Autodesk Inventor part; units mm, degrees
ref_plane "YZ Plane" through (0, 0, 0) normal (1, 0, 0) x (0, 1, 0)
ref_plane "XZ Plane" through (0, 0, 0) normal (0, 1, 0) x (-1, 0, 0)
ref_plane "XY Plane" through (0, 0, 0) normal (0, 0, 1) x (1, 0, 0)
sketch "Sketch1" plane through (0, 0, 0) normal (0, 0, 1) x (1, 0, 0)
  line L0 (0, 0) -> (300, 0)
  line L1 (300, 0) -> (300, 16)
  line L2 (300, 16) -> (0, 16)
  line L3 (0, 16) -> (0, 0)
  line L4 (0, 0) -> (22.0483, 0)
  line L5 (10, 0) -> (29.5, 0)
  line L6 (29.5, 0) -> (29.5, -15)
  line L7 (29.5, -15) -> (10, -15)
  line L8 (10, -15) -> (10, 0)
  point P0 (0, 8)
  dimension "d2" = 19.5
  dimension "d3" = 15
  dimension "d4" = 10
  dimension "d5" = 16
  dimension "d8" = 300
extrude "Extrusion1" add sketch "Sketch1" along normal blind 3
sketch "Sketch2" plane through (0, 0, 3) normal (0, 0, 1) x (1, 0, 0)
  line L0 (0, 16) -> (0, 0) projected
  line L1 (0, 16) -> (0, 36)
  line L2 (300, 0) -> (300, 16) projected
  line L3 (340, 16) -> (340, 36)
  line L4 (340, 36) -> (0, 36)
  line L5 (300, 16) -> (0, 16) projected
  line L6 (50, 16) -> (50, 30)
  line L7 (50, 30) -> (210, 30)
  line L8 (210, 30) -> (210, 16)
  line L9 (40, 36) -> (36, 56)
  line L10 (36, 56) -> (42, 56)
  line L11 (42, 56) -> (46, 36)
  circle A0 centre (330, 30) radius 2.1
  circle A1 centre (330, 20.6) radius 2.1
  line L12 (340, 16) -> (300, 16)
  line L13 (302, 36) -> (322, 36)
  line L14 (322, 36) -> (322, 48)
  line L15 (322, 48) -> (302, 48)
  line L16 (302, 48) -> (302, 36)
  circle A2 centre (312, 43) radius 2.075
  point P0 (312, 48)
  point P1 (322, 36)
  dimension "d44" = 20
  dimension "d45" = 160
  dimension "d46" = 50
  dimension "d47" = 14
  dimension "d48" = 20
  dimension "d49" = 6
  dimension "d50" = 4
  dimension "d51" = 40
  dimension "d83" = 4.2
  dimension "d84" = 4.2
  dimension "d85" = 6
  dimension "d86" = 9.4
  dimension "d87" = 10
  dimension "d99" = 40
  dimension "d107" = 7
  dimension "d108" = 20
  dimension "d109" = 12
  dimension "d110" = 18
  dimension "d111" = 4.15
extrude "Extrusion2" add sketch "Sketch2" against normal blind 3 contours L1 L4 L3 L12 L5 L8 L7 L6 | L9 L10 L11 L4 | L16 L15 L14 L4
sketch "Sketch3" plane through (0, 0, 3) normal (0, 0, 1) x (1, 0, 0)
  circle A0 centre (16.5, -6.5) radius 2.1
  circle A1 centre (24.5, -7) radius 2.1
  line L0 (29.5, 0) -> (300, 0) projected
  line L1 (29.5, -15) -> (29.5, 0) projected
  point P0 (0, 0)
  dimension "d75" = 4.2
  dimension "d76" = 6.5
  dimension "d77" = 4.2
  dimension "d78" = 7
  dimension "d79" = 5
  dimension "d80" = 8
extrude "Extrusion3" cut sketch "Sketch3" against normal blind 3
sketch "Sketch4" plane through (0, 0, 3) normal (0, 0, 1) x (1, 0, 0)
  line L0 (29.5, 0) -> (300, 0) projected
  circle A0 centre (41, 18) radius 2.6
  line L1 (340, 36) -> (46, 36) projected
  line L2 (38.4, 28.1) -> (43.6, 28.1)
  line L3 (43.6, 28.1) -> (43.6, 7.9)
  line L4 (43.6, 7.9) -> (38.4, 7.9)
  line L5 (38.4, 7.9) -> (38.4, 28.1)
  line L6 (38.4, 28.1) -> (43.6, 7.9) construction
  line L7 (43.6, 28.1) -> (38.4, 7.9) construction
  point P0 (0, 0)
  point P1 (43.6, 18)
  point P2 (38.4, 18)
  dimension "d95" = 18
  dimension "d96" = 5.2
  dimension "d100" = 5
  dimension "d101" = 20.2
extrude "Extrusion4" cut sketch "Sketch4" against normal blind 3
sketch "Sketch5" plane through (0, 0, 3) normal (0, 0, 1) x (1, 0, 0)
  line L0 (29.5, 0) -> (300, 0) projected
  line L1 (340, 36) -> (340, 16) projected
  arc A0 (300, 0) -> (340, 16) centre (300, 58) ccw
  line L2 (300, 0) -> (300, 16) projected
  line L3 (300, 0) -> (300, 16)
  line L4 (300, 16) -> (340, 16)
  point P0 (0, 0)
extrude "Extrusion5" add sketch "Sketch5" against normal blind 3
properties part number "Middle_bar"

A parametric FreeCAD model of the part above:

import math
import FreeCAD as App
import Part
import Sketcher
from FreeCAD import Vector


def add_polygon(sketch, points):
    """Adds a closed chain of lines whose ends are joined by coincident constraints."""
    first, n = sketch.GeometryCount, len(points)
    for a, b in zip(points, points[1:] + points[:1]):
        sketch.addGeometry(Part.LineSegment(App.Vector(*a, 0), App.Vector(*b, 0)), False)
    for i in range(n):
        sketch.addConstraint(Sketcher.Constraint("Coincident", first + i, 2, first + (i + 1) % n, 1))

doc = App.newDocument("Part")
body = doc.addObject("PartDesign::Body", "Body")

# Sketch on XY plane
sketch1 = body.newObject("Sketcher::SketchObject", "Sketch")
sketch1.AttachmentSupport = (doc.getObject("XY_Plane"), [""])
sketch1.MapMode = "FlatFace"
add_polygon(sketch1, [(0, 16), (0, 0), (10, 0), (10, -15), (30, -15), (30, 0), (300, 0), (300, 16)])  # lines 0-7
sketch1.addConstraint(Sketcher.Constraint("Vertical", 0))
sketch1.addConstraint(Sketcher.Constraint("Horizontal", 1))
sketch1.addConstraint(Sketcher.Constraint("Vertical", 2))
sketch1.addConstraint(Sketcher.Constraint("Horizontal", 3))
sketch1.addConstraint(Sketcher.Constraint("Vertical", 4))
sketch1.addConstraint(Sketcher.Constraint("Horizontal", 5))
sketch1.addConstraint(Sketcher.Constraint("Vertical", 6))
sketch1.addConstraint(Sketcher.Constraint("Horizontal", 7))
sketch1.addConstraint(Sketcher.Constraint("Coincident", 0, 2, -1, 1))
sketch1.addConstraint(Sketcher.Constraint("PointOnObject", 4, 2, -1))
sketch1.addConstraint(Sketcher.Constraint("DistanceX", 1, 1, 1, 2, 10.0))
sketch1.addConstraint(Sketcher.Constraint("DistanceX", 7, 2, 7, 1, 300.0))
sketch1.addConstraint(Sketcher.Constraint("DistanceY", 0, 2, 0, 1, 16.0))
sketch1.addConstraint(Sketcher.Constraint("DistanceY", 2, 2, 2, 1, 15.0))
sketch1.addConstraint(Sketcher.Constraint("DistanceX", 3, 1, 3, 2, 19.5))
pad1 = body.newObject("PartDesign::Pad", "Pad")
pad1.Profile = sketch1
pad1.Length = 3

# Sketch on XY plane
sketch2 = body.newObject("Sketcher::SketchObject", "Sketch001")
sketch2.AttachmentSupport = (doc.getObject("XY_Plane"), [""])
sketch2.MapMode = "FlatFace"
sketch2.AttachmentOffset = App.Placement(Vector(0, 0, 3), App.Rotation())
add_polygon(sketch2, [(0, 36), (0, 16), (50, 16), (50, 30), (210, 30), (210, 16), (340, 16), (340, 36), (322, 36), (322, 48), (302, 48), (302, 36), (46, 36), (42, 56), (36, 56), (40, 36)])  # lines 0-15
sketch2.addGeometry(Part.Circle(Vector(330, 20.6, 0), Vector(0, 0, 1), 2.1), False)  # 16
sketch2.addGeometry(Part.Circle(Vector(330, 30, 0), Vector(0, 0, 1), 2.1), False)  # 17
sketch2.addGeometry(Part.Circle(Vector(312, 43, 0), Vector(0, 0, 1), 2.1), False)  # 18
sketch2.addConstraint(Sketcher.Constraint("Vertical", 0))
sketch2.addConstraint(Sketcher.Constraint("Horizontal", 1))
sketch2.addConstraint(Sketcher.Constraint("Vertical", 2))
sketch2.addConstraint(Sketcher.Constraint("Horizontal", 3))
sketch2.addConstraint(Sketcher.Constraint("Vertical", 4))
sketch2.addConstraint(Sketcher.Constraint("Horizontal", 5))
sketch2.addConstraint(Sketcher.Constraint("Vertical", 6))
sketch2.addConstraint(Sketcher.Constraint("Horizontal", 7))
sketch2.addConstraint(Sketcher.Constraint("Vertical", 8))
sketch2.addConstraint(Sketcher.Constraint("Horizontal", 9))
sketch2.addConstraint(Sketcher.Constraint("Vertical", 10))
sketch2.addConstraint(Sketcher.Constraint("Horizontal", 11))
sketch2.addConstraint(Sketcher.Constraint("Horizontal", 13))
sketch2.addConstraint(Sketcher.Constraint("Horizontal", 15))
sketch2.addConstraint(Sketcher.Constraint("Equal", 16, 17))
sketch2.addConstraint(Sketcher.Constraint("PointOnObject", 0, 2, -2))
sketch2.addConstraint(Sketcher.Constraint("Parallel", 12, 14))
sketch2.addConstraint(Sketcher.Constraint("Horizontal", 17, 3, 2, 2))
sketch2.addConstraint(Sketcher.Constraint("Horizontal", 1, 2, 4, 2))
sketch2.addConstraint(Sketcher.Constraint("Horizontal", 7, 2, 10, 2))
sketch2.addConstraint(Sketcher.Constraint("Horizontal", 11, 2, 14, 2))
sketch2.addConstraint(Sketcher.Constraint("Vertical", 16, 3, 17, 3))
sketch2.addConstraint(Sketcher.Constraint("Equal", 9, 0))
sketch2.addConstraint(Sketcher.Constraint("Diameter", 16, 4.2))
sketch2.addConstraint(Sketcher.Constraint("Diameter", 18, 4.15))
sketch2.addConstraint(Sketcher.Constraint("DistanceX", 1, 1, 1, 2, 50.0))
sketch2.addConstraint(Sketcher.Constraint("DistanceX", 3, 1, 3, 2, 160.0))
sketch2.addConstraint(Sketcher.Constraint("DistanceX", 7, 2, 7, 1, 18.0))
sketch2.addConstraint(Sketcher.Constraint("DistanceX", 9, 2, 9, 1, 20.0))
sketch2.addConstraint(Sketcher.Constraint("DistanceX", 13, 2, 13, 1, 6.0))
sketch2.addConstraint(Sketcher.Constraint("DistanceX", 15, 2, 15, 1, 40.0))
sketch2.addConstraint(Sketcher.Constraint("DistanceY", 2, 1, 2, 2, 14.0))
sketch2.addConstraint(Sketcher.Constraint("DistanceY", 8, 1, 8, 2, 12.0))
sketch2.addConstraint(Sketcher.Constraint("DistanceX", 18, 3, 17, 3, 18.0))
sketch2.addConstraint(Sketcher.Constraint("DistanceX", 16, 3, 5, 2, 10.0))
sketch2.addConstraint(Sketcher.Constraint("DistanceY", 6, 2, 18, 3, 7.0))
sketch2.addConstraint(Sketcher.Constraint("DistanceX", 12, 2, 11, 2, 4.0))
sketch2.addConstraint(Sketcher.Constraint("DistanceY", 11, 2, 12, 2, 20.0))
sketch2.addConstraint(Sketcher.Constraint("DistanceY", 16, 3, 17, 3, 9.4))
sketch2.addConstraint(Sketcher.Constraint("DistanceX", 5, 1, 5, 2, 130.0))
sketch2.addConstraint(Sketcher.Constraint("DistanceY", -1, 1, 17, 3, 30.0))
pad2 = body.newObject("PartDesign::Pad", "Pad001")
pad2.Profile = sketch2
pad2.Length = 3
pad2.Reversed = True

# Sketch on XY plane
sketch3 = body.newObject("Sketcher::SketchObject", "Sketch002")
sketch3.AttachmentSupport = (doc.getObject("XY_Plane"), [""])
sketch3.MapMode = "FlatFace"
sketch3.AttachmentOffset = App.Placement(Vector(0, 0, 3), App.Rotation())
sketch3.addGeometry(Part.Circle(Vector(16.5, -6.5, 0), Vector(0, 0, 1), 2.1), False)
sketch3.addGeometry(Part.Circle(Vector(24.5, -7, 0), Vector(0, 0, 1), 2.1), False)
sketch3.addConstraint(Sketcher.Constraint("Equal", 0, 1))
sketch3.addConstraint(Sketcher.Constraint("Diameter", 0, 4.2))
sketch3.addConstraint(Sketcher.Constraint("DistanceY", 1, 3, -1, 1, 7.0))
sketch3.addConstraint(Sketcher.Constraint("DistanceX", 0, 3, 1, 3, 8.0))
sketch3.addConstraint(Sketcher.Constraint("DistanceY", 0, 3, -1, 1, 6.5))
sketch3.addConstraint(Sketcher.Constraint("DistanceX", -1, 1, 0, 3, 16.5))
pocket1 = body.newObject("PartDesign::Pocket", "Pocket")
pocket1.Profile = sketch3
pocket1.Length = 3

# Sketch on XY plane
sketch4 = body.newObject("Sketcher::SketchObject", "Sketch003")
sketch4.AttachmentSupport = (doc.getObject("XY_Plane"), [""])
sketch4.MapMode = "FlatFace"
sketch4.AttachmentOffset = App.Placement(Vector(0, 0, 3), App.Rotation())
add_polygon(sketch4, [(44, 8), (44, 28), (38, 28), (38, 8)])  # lines 0-3
sketch4.addConstraint(Sketcher.Constraint("Vertical", 0))
sketch4.addConstraint(Sketcher.Constraint("Horizontal", 1))
sketch4.addConstraint(Sketcher.Constraint("Vertical", 2))
sketch4.addConstraint(Sketcher.Constraint("Horizontal", 3))
sketch4.addConstraint(Sketcher.Constraint("DistanceX", 1, 2, 1, 1, 5.2))
sketch4.addConstraint(Sketcher.Constraint("DistanceY", 0, 1, 0, 2, 20.2))
sketch4.addConstraint(Sketcher.Constraint("DistanceX", -1, 1, 0, 2, 43.6))
sketch4.addConstraint(Sketcher.Constraint("DistanceY", -1, 1, 0, 2, 28.1))
pocket2 = body.newObject("PartDesign::Pocket", "Pocket001")
pocket2.Profile = sketch4
pocket2.Length = 3

# Sketch on XY plane
sketch5 = body.newObject("Sketcher::SketchObject", "Sketch004")
sketch5.AttachmentSupport = (doc.getObject("XY_Plane"), [""])
sketch5.MapMode = "FlatFace"
sketch5.AttachmentOffset = App.Placement(Vector(0, 0, 3), App.Rotation())
sketch5.addGeometry(Part.LineSegment(Vector(300, 16, 0), Vector(300, 0, 0)), False)
sketch5.addGeometry(Part.ArcOfCircle(Part.Circle(Vector(300, 58, 0), Vector(0, 0, 1), 58), math.radians(-90), math.radians(-46)), False)
sketch5.addGeometry(Part.LineSegment(Vector(340, 16, 0), Vector(300, 16, 0)), False)
sketch5.addConstraint(Sketcher.Constraint("Coincident", 0, 2, 1, 1))
sketch5.addConstraint(Sketcher.Constraint("Coincident", 1, 2, 2, 1))
sketch5.addConstraint(Sketcher.Constraint("Coincident", 2, 2, 0, 1))
sketch5.addConstraint(Sketcher.Constraint("Vertical", 0))
sketch5.addConstraint(Sketcher.Constraint("Horizontal", 2))
sketch5.addConstraint(Sketcher.Constraint("PointOnObject", 0, 2, -1))
sketch5.addConstraint(Sketcher.Constraint("Vertical", 1, 3, 0, 2))
sketch5.addConstraint(Sketcher.Constraint("Radius", 1, 58.0))
sketch5.addConstraint(Sketcher.Constraint("DistanceX", 2, 2, 2, 1, 40.0))
sketch5.addConstraint(Sketcher.Constraint("DistanceX", -1, 1, 1, 3, 300.0))
pad3 = body.newObject("PartDesign::Pad", "Pad002")
pad3.Profile = sketch5
pad3.Length = 3
pad3.Reversed = True

doc.recompute()
